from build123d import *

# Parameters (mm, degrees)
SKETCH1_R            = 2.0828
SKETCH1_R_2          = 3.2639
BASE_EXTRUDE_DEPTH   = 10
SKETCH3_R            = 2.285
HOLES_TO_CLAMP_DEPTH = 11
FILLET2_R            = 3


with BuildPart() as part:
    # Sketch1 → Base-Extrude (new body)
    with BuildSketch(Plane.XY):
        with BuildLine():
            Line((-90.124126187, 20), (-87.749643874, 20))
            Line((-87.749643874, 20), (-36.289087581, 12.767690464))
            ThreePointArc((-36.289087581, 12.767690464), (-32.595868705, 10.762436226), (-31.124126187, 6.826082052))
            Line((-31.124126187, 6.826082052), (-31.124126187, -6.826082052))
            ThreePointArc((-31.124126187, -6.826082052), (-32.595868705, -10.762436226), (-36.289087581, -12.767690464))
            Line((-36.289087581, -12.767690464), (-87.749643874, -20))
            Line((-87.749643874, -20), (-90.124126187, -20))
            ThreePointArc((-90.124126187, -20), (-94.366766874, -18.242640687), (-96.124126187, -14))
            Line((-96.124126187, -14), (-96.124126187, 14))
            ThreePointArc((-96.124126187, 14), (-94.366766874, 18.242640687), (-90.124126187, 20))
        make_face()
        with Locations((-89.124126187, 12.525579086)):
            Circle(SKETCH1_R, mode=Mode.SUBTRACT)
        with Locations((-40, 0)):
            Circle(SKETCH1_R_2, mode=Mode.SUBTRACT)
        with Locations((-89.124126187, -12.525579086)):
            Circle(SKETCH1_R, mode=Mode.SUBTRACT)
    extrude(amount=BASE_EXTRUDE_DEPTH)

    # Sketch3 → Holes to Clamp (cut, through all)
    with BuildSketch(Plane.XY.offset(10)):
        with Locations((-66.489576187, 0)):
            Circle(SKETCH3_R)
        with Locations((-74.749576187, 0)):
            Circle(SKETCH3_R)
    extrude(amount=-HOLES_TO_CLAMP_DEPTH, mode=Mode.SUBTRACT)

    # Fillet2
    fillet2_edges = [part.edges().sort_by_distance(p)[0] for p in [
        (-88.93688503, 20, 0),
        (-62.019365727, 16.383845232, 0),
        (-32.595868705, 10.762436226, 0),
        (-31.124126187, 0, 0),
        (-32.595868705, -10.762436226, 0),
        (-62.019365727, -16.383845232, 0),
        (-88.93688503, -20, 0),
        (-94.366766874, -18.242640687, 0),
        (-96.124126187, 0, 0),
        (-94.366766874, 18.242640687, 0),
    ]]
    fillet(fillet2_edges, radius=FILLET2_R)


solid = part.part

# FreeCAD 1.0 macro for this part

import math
import FreeCAD as App
import Part
import Sketcher
from FreeCAD import Vector
Q = App.Units.Quantity


def edges_at(feature, points):
    """Names of the edges that pass closest to the given points."""
    edges = feature.Shape.Edges
    near = lambda p: min(range(len(edges)), key=lambda i: edges[i].distToShape(Part.Vertex(*p))[0])
    return sorted({f"Edge{near(p) + 1}" for p in points})

doc = App.newDocument("Part")
body = doc.addObject("PartDesign::Body", "Body")

sketch1 = body.newObject("Sketcher::SketchObject", "Sketch")
sketch1.AttachmentSupport = (doc.getObject("XY_Plane"), [""])
sketch1.MapMode = "FlatFace"
sketch1.addGeometry([
    Part.LineSegment(Vector(-87.7, 20, 0), Vector(-90.1, 20, 0)),
    Part.ArcOfCircle(Part.Circle(Vector(-90.1, 14, 0), Vector(0, 0, 1), 6), math.radians(90), math.radians(180)),
    Part.LineSegment(Vector(-96.1, 14, 0), Vector(-96.1, -14, 0)),
    Part.ArcOfCircle(Part.Circle(Vector(-90.1, -14, 0), Vector(0, 0, 1), 6), math.radians(180), math.radians(270)),
    Part.LineSegment(Vector(-90.1, -20, 0), Vector(-87.7, -20, 0)),
    Part.LineSegment(Vector(-87.7, -20, 0), Vector(-36.3, -12.8, 0)),
    Part.ArcOfCircle(Part.Circle(Vector(-37.1, -6.8, 0), Vector(0, 0, 1), 6), math.radians(-82), math.radians(0)),
    Part.LineSegment(Vector(-31.1, -6.8, 0), Vector(-31.1, 6.8, 0)),
    Part.ArcOfCircle(Part.Circle(Vector(-37.1, 6.8, 0), Vector(0, 0, 1), 6), math.radians(0), math.radians(82)),
    Part.LineSegment(Vector(-36.3, 12.8, 0), Vector(-87.7, 20, 0)),
    Part.Circle(Vector(-89.1, -12.5, 0), Vector(0, 0, 1), 2.1),
    Part.Circle(Vector(-40, 0, 0), Vector(0, 0, 1), 3.3),
    Part.Circle(Vector(-89.1, 12.5, 0), Vector(0, 0, 1), 2.1),
], False)
sketch1.addConstraint([
    Sketcher.Constraint("Tangent", 0, 2, 1, 1),
    Sketcher.Constraint("Tangent", 1, 2, 2, 1),
    Sketcher.Constraint("Tangent", 2, 2, 3, 1),
    Sketcher.Constraint("Tangent", 3, 2, 4, 1),
    Sketcher.Constraint("Coincident", 4, 2, 5, 1),
    Sketcher.Constraint("Tangent", 5, 2, 6, 1),
    Sketcher.Constraint("Tangent", 6, 2, 7, 1),
    Sketcher.Constraint("Tangent", 7, 2, 8, 1),
    Sketcher.Constraint("Tangent", 8, 2, 9, 1),
    Sketcher.Constraint("Coincident", 9, 2, 0, 1),
    Sketcher.Constraint("Horizontal", 0),
    Sketcher.Constraint("Vertical", 2),
    Sketcher.Constraint("Horizontal", 4),
    Sketcher.Constraint("Vertical", 7),
    Sketcher.Constraint("Equal", 1, 3),
    Sketcher.Constraint("Equal", 3, 6),
    Sketcher.Constraint("Equal", 6, 8),
    Sketcher.Constraint("Equal", 10, 12),
    Sketcher.Constraint("Symmetric", 10, 3, 12, 3, -1),
    Sketcher.Constraint("Symmetric", 5, 2, 8, 2, -1),
    Sketcher.Constraint("PointOnObject", 11, 3, -1),
    Sketcher.Constraint("Vertical", 4, 2, 9, 2),
    Sketcher.Constraint("Radius", 1, Q("6 mm")),
    Sketcher.Constraint("DistanceY", 2, 2, 2, 1, Q("28 mm")),
    Sketcher.Constraint("Angle", 5, Q("8 deg")),
    Sketcher.Constraint("DistanceX", 11, 3, -1, 1, Q("40 mm")),
    Sketcher.Constraint("DistanceX", 3, 3, 6, 3, Q("53 mm")),
    Sketcher.Constraint("DistanceX", 3, 3, 10, 3, Q("1 mm")),
    Sketcher.Constraint("Diameter", 10, Q("4.1656 mm")),
    Sketcher.Constraint("Diameter", 11, Q("6.5278 mm")),
    Sketcher.Constraint("Distance", 5, Q("51.966289 mm")),
    Sketcher.Constraint("DistanceY", 10, 3, -1, 1, Q("12.525579 mm")),
    Sketcher.Constraint("DistanceX", 1, 3, -1, 1, Q("90.124126 mm")),
])
pad1 = body.newObject("PartDesign::Pad", "Pad")
pad1.Profile = sketch1
pad1.Length = 10

sketch2 = body.newObject("Sketcher::SketchObject", "Sketch001")
sketch2.AttachmentSupport = (doc.getObject("XY_Plane"), [""])
sketch2.MapMode = "FlatFace"
sketch2.AttachmentOffset = App.Placement(Vector(0, 0, 10), App.Rotation())
sketch2.addGeometry([
    Part.Circle(Vector(-66.5, 0, 0), Vector(0, 0, 1), 2.3),
    Part.Circle(Vector(-74.7, 0, 0), Vector(0, 0, 1), 2.3),
], False)
sketch2.addConstraint([
    Sketcher.Constraint("Equal", 0, 1),
    Sketcher.Constraint("PointOnObject", 0, 3, -1),
    Sketcher.Constraint("PointOnObject", 1, 3, -1),
    Sketcher.Constraint("Diameter", 0, Q("4.57 mm")),
    Sketcher.Constraint("DistanceX", 1, 3, 0, 3, Q("8.26 mm")),
    Sketcher.Constraint("DistanceX", 0, 3, -1, 1, Q("66.489576 mm")),
])
pocket1 = body.newObject("PartDesign::Pocket", "Pocket")
pocket1.Profile = sketch2
pocket1.Type = "ThroughAll"
doc.recompute()

fillet = body.newObject("PartDesign::Fillet", "Fillet")
fillet.Base = (pocket1, edges_at(pocket1, [
    (-88.937, 20, 0),
    (-62.019, 16.384, 0),
    (-32.596, 10.762, 0),
    (-31.124, 0, 0),
    (-32.596, -10.762, 0),
    (-62.019, -16.384, 0),
    (-88.937, -20, 0),
    (-94.367, -18.243, 0),
    (-96.124, 0, 0),
    (-94.367, 18.243, 0),
]))
fillet.Radius = 3

doc.recompute()
